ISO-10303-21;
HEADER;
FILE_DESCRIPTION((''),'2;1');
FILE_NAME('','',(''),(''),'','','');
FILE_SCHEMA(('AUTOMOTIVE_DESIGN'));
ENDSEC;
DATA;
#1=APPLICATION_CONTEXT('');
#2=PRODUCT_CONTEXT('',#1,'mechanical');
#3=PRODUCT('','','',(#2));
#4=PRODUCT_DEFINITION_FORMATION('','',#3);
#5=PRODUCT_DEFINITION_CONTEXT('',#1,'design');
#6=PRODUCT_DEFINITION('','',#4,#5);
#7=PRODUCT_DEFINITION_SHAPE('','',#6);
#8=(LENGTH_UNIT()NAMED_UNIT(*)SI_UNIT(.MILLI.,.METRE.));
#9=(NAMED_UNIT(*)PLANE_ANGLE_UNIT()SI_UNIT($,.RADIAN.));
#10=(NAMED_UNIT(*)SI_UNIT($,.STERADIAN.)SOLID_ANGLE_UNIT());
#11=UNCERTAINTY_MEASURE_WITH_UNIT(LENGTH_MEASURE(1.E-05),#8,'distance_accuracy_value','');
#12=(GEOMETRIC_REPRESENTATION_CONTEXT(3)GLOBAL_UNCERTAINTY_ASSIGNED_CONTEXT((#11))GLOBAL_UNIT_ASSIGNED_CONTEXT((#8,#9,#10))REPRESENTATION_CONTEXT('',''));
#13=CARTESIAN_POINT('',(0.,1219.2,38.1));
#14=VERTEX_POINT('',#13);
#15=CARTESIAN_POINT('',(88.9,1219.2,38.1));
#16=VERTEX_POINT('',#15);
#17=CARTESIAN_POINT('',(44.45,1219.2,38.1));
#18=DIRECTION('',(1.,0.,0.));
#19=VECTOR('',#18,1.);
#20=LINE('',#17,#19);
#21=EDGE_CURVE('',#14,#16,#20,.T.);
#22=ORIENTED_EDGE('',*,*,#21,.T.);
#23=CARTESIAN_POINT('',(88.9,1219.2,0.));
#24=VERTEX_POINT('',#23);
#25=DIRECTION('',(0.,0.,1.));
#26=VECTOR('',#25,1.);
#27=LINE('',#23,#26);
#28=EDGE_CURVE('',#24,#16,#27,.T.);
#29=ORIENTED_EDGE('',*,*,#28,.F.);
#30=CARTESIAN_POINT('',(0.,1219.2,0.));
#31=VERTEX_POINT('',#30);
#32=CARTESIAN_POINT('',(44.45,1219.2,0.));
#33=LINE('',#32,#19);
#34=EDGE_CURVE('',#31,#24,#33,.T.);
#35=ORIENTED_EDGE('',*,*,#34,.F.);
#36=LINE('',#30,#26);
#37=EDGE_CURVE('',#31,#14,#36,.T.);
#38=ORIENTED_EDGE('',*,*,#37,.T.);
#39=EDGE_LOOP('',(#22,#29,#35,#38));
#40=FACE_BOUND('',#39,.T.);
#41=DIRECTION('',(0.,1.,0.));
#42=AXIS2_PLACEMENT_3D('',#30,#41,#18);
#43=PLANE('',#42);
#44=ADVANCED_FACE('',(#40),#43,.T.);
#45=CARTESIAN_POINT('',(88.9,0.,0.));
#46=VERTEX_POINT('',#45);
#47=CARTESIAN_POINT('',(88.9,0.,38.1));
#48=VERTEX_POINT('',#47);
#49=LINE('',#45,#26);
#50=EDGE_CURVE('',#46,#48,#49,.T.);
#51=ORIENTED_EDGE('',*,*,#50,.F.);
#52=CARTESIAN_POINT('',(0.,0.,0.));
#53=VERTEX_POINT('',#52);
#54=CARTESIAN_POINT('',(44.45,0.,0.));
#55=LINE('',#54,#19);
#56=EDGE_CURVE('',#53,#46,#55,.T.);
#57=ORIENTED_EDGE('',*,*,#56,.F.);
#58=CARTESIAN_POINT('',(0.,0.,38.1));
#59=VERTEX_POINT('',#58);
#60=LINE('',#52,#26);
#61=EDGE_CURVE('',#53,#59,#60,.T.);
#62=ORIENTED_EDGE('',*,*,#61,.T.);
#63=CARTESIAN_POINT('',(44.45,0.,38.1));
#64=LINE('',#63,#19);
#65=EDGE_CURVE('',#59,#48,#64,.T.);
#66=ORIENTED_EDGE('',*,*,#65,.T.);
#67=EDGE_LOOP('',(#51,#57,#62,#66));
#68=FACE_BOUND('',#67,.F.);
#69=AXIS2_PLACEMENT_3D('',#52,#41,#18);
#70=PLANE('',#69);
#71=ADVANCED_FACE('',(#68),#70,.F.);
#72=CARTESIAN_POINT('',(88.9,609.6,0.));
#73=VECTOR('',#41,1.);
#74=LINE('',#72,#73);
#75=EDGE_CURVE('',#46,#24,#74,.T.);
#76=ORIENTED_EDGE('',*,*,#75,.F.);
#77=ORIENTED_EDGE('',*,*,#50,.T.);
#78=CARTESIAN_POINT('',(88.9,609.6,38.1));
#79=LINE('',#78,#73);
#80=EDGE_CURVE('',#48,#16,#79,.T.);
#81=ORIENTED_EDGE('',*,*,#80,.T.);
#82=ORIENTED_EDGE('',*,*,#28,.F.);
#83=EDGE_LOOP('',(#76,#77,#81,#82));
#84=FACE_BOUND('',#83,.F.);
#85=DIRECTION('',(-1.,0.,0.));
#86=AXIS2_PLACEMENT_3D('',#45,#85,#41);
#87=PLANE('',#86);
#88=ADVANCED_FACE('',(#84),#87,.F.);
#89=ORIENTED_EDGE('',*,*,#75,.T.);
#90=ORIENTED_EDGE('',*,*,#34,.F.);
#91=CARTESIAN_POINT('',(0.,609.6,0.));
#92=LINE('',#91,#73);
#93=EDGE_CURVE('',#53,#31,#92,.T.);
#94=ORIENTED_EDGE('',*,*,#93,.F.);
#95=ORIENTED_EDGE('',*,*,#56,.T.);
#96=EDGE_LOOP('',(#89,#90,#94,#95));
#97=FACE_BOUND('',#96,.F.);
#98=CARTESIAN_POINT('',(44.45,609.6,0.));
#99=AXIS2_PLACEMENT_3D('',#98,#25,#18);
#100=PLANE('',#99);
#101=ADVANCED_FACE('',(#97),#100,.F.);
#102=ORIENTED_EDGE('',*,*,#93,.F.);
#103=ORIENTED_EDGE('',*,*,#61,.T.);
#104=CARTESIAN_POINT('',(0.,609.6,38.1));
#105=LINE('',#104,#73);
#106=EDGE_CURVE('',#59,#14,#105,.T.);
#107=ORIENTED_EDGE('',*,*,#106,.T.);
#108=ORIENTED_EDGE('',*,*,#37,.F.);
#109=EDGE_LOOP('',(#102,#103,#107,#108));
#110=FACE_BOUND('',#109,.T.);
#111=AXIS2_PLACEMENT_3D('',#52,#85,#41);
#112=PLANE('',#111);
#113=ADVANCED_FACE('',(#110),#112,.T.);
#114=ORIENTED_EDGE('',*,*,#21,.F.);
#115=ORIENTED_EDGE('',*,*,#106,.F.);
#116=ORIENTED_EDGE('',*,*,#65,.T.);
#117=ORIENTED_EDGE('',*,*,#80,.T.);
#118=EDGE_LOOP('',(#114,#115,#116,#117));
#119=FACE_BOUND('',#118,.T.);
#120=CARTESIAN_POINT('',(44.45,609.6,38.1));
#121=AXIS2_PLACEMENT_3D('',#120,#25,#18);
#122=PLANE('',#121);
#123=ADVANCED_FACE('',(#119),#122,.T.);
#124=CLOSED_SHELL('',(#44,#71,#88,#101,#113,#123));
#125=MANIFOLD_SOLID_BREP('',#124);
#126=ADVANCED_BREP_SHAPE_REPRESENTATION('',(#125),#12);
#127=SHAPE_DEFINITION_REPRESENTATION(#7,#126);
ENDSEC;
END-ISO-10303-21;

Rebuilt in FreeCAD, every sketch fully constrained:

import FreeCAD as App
import Part
import Sketcher
from FreeCAD import Vector
Q = App.Units.Quantity

doc = App.newDocument("Part")
params = doc.addObject("Spreadsheet::Sheet", "Params")
for row, (alias, value) in enumerate([
    ("sketch1_height", "48 in"),
    ("sketch1_width", "3.5 in"),
    ("pad1_length", "1.5 in"),
], start=1):
    params.set(f"A{row}", alias)
    params.set(f"B{row}", "=" + value)
    params.setAlias(f"B{row}", alias)

body = doc.addObject("PartDesign::Body", "Body")

# Sketch on XY plane
sketch1 = body.newObject("Sketcher::SketchObject", "Sketch")
sketch1.AttachmentSupport = (doc.getObject("XY_Plane"), [""])
sketch1.MapMode = "FlatFace"
sketch1.addGeometry(Part.LineSegment(Vector(0, 1219.2, 0), Vector(0, 0, 0)), False)
sketch1.addGeometry(Part.LineSegment(Vector(0, 0, 0), Vector(88.9, 0, 0)), False)
sketch1.addGeometry(Part.LineSegment(Vector(88.9, 0, 0), Vector(88.9, 1219.2, 0)), False)
sketch1.addGeometry(Part.LineSegment(Vector(88.9, 1219.2, 0), Vector(0, 1219.2, 0)), False)
sketch1.addConstraint(Sketcher.Constraint("Coincident", 0, 2, 1, 1))
sketch1.addConstraint(Sketcher.Constraint("Coincident", 1, 2, 2, 1))
sketch1.addConstraint(Sketcher.Constraint("Coincident", 2, 2, 3, 1))
sketch1.addConstraint(Sketcher.Constraint("Coincident", 3, 2, 0, 1))
sketch1.addConstraint(Sketcher.Constraint("Vertical", 0))
sketch1.addConstraint(Sketcher.Constraint("Horizontal", 1))
sketch1.addConstraint(Sketcher.Constraint("Vertical", 2))
sketch1.addConstraint(Sketcher.Constraint("Horizontal", 3))
sketch1.addConstraint(Sketcher.Constraint("Coincident", 0, 2, -1, 1))
sketch1.addConstraint(Sketcher.Constraint("DistanceY", 0, 2, 0, 1, Q("48 in")))
sketch1.addConstraint(Sketcher.Constraint("DistanceX", 1, 1, 1, 2, Q("3.5 in")))
sketch1.setExpression("Constraints[9]", "Params.sketch1_height")
sketch1.setExpression("Constraints[10]", "Params.sketch1_width")
pad1 = body.newObject("PartDesign::Pad", "Pad")
pad1.Profile = sketch1
pad1.setExpression("Length", "Params.pad1_length")

doc.recompute()
